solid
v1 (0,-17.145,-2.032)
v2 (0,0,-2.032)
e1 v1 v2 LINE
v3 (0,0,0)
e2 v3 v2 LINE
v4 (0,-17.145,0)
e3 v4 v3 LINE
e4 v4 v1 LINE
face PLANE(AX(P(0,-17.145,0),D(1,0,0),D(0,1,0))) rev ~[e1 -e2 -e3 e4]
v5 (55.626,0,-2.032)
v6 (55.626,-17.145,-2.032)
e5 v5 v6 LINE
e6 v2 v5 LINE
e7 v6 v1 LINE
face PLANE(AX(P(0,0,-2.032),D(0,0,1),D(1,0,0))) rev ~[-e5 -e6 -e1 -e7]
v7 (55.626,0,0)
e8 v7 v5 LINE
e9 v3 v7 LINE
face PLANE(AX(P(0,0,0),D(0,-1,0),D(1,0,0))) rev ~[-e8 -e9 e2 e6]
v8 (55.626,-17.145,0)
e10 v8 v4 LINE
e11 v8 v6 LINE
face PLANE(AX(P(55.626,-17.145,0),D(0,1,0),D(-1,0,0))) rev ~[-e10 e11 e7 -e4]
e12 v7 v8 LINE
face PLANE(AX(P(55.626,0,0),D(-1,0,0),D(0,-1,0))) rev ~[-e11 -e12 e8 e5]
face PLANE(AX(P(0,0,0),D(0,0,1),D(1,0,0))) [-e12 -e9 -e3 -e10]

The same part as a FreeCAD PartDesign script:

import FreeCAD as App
import Part
import Sketcher
from FreeCAD import Vector
Q = App.Units.Quantity

doc = App.newDocument("Part")
params = doc.addObject("Spreadsheet::Sheet", "Params")
for row, (alias, value) in enumerate([
    ("sketch1_width", "2.19 in"),
    ("sketch1_height", "0.675 in"),
    ("pad1_length", "0.08 in"),
], start=1):
    params.set(f"A{row}", alias)
    params.set(f"B{row}", "=" + value)
    params.setAlias(f"B{row}", alias)

body = doc.addObject("PartDesign::Body", "Body")

sketch1 = doc.addObject("Sketcher::SketchObject", "Sketch")
body.addObject(sketch1)
sketch1.AttachmentSupport = (doc.XY_Plane, [""])
sketch1.MapMode = "FlatFace"
sketch1.addGeometry([
    Part.LineSegment(Vector(56, 0, 0), Vector(0, 0, 0)),
    Part.LineSegment(Vector(0, 0, 0), Vector(0, -17, 0)),
    Part.LineSegment(Vector(0, -17, 0), Vector(56, -17, 0)),
    Part.LineSegment(Vector(56, -17, 0), Vector(56, 0, 0)),
], False)
sketch1.addConstraint([
    Sketcher.Constraint("Coincident", 0, 2, 1, 1),
    Sketcher.Constraint("Coincident", 1, 2, 2, 1),
    Sketcher.Constraint("Coincident", 2, 2, 3, 1),
    Sketcher.Constraint("Coincident", 3, 2, 0, 1),
    Sketcher.Constraint("Horizontal", 0),
    Sketcher.Constraint("Vertical", 1),
    Sketcher.Constraint("Horizontal", 2),
    Sketcher.Constraint("Vertical", 3),
    Sketcher.Constraint("Coincident", 0, 2, -1, 1),
    Sketcher.Constraint("DistanceX", 0, 2, 0, 1, Q("2.19 in")),
    Sketcher.Constraint("DistanceY", 1, 2, 1, 1, Q("0.675 in")),
])
sketch1.setExpression("Constraints[9]", "Params.sketch1_width")
sketch1.setExpression("Constraints[10]", "Params.sketch1_height")
pad1 = doc.addObject("PartDesign::Pad", "Pad")
body.addObject(pad1)
pad1.Profile = sketch1
pad1.setExpression("Length", "Params.pad1_length")
pad1.Reversed = True

doc.recompute()
